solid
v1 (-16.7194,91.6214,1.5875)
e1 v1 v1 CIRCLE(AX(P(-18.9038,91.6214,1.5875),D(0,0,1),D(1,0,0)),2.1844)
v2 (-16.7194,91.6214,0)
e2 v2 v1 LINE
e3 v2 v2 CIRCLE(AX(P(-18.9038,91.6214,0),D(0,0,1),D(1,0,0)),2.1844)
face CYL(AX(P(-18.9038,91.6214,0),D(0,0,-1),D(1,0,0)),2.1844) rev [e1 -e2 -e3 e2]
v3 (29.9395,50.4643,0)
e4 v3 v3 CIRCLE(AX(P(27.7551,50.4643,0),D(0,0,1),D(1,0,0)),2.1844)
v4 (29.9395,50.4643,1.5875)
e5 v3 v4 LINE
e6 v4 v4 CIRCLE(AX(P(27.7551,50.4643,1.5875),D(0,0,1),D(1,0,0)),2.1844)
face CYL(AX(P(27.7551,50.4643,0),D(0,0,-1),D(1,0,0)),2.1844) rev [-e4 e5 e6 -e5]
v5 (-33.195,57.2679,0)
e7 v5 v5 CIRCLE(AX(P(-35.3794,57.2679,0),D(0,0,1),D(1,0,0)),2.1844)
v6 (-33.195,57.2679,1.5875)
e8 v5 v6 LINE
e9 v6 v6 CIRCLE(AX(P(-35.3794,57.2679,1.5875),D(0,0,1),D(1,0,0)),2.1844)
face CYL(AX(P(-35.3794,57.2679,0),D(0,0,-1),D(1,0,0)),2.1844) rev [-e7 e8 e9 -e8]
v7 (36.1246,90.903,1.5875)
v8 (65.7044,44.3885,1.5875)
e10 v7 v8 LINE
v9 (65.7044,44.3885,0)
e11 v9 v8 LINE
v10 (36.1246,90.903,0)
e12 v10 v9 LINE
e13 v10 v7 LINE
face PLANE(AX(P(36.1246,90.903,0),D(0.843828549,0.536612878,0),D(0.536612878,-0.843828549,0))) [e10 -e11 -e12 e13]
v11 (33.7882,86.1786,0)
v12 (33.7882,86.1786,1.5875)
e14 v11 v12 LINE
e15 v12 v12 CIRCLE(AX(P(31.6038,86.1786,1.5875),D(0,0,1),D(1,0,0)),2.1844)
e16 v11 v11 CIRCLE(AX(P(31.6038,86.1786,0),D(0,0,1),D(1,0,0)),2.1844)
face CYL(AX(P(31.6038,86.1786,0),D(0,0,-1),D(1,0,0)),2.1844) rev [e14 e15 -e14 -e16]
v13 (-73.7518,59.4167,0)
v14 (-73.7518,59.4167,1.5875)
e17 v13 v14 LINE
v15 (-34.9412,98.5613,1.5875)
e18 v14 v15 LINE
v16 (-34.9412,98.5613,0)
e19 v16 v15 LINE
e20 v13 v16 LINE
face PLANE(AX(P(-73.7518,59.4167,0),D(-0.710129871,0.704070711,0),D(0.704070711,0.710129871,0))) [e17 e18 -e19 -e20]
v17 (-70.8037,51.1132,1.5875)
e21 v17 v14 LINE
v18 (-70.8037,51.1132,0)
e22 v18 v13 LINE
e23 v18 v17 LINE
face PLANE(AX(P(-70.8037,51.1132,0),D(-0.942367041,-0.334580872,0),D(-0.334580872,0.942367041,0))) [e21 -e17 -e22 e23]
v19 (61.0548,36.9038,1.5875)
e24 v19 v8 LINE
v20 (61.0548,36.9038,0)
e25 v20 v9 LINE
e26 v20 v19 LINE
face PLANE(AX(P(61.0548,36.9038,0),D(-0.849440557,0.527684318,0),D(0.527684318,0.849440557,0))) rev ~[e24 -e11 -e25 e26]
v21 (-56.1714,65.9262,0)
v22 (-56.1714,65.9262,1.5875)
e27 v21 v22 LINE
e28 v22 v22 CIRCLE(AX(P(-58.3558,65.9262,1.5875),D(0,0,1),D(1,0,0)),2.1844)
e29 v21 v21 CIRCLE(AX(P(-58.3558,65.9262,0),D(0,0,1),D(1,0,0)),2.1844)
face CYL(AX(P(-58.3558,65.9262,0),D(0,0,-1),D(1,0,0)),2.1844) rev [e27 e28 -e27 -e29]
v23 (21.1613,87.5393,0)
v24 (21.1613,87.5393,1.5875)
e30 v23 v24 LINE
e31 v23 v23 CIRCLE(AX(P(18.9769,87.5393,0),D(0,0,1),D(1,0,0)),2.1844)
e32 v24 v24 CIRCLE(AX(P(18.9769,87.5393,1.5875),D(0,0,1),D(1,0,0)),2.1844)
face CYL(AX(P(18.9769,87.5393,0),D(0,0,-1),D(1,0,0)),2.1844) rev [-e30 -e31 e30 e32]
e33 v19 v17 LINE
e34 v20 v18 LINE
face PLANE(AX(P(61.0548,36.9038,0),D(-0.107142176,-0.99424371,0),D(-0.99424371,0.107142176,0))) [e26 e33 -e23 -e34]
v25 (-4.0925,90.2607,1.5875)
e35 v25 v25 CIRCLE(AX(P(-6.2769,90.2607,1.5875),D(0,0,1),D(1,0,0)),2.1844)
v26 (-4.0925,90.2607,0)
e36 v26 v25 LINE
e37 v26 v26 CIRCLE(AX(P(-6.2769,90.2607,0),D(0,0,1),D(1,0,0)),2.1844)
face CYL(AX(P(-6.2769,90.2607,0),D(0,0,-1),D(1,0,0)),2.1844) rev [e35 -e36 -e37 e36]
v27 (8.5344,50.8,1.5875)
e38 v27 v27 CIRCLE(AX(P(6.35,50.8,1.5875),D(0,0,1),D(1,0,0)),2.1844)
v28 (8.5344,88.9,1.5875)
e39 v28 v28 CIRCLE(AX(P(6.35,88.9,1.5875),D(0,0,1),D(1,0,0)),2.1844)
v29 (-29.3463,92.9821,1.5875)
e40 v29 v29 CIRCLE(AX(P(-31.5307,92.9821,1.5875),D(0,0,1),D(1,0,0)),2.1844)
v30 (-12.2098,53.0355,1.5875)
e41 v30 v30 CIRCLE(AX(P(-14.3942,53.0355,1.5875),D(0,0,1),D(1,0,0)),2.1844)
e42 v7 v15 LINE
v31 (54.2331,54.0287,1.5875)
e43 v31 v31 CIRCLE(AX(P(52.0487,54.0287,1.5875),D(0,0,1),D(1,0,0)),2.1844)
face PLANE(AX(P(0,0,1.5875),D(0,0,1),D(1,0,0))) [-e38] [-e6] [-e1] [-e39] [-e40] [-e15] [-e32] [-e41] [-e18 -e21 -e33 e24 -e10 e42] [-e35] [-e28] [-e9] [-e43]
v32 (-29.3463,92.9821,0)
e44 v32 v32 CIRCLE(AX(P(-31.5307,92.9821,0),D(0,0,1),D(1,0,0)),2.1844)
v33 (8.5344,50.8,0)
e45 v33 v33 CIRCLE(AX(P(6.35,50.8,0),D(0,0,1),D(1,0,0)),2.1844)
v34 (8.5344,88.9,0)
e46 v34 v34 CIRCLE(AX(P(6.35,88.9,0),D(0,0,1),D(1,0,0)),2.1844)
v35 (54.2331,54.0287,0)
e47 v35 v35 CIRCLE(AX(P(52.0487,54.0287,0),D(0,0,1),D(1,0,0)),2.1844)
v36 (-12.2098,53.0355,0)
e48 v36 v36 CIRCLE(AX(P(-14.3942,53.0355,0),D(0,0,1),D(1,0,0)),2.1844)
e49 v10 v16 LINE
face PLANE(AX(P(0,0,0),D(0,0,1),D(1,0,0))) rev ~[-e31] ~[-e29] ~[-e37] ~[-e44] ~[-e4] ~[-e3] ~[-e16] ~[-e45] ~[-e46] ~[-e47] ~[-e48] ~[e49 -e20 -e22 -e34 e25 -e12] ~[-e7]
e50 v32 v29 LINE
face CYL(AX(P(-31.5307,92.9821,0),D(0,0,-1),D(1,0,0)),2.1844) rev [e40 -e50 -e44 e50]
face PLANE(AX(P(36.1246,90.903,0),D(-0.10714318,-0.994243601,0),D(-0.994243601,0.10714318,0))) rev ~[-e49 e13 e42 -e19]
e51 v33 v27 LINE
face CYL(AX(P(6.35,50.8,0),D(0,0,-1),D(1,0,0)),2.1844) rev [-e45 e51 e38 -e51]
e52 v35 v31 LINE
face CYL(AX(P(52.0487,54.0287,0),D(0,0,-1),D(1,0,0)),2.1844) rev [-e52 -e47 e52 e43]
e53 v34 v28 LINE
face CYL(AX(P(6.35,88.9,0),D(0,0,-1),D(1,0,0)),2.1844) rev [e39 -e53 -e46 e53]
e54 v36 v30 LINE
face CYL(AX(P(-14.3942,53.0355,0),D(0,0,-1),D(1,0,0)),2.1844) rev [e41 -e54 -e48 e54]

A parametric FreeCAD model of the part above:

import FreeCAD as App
import Part
import Sketcher
Q = App.Units.Quantity

doc = App.newDocument("Part")
body = doc.addObject("PartDesign::Body", "Body")

# Sketch on XY plane
sketch1 = doc.addObject("Sketcher::SketchObject", "Sketch")
body.addObject(sketch1)
sketch1.AttachmentSupport = (doc.XY_Plane, [""])
sketch1.MapMode = "FlatFace"
sketch1.addGeometry(Part.LineSegment(App.Vector(65.7044, 44.3885, 0), App.Vector(36.1246, 90.903, 0)), False)
sketch1.addGeometry(Part.LineSegment(App.Vector(36.1246, 90.903, 0), App.Vector(-34.9412, 98.5613, 0)), False)
sketch1.addGeometry(Part.LineSegment(App.Vector(-34.9412, 98.5613, 0), App.Vector(-73.7518, 59.4167, 0)), False)
sketch1.addGeometry(Part.LineSegment(App.Vector(-73.7518, 59.4167, 0), App.Vector(-70.8037, 51.1132, 0)), False)
sketch1.addGeometry(Part.LineSegment(App.Vector(-70.8037, 51.1132, 0), App.Vector(61.0548, 36.9038, 0)), False)
sketch1.addGeometry(Part.LineSegment(App.Vector(61.0548, 36.9038, 0), App.Vector(65.7044, 44.3885, 0)), False)
sketch1.addGeometry(Part.Circle(App.Vector(-58.3558, 65.9262, 0), App.Vector(0, 0, 1), 2.1844), False)
sketch1.addGeometry(Part.Circle(App.Vector(-35.3794, 57.2679, 0), App.Vector(0, 0, 1), 2.1844), False)
sketch1.addGeometry(Part.Circle(App.Vector(-14.3942, 53.0355, 0), App.Vector(0, 0, 1), 2.1844), False)
sketch1.addGeometry(Part.Circle(App.Vector(6.35, 50.8, 0), App.Vector(0, 0, 1), 2.1844), False)
sketch1.addGeometry(Part.Circle(App.Vector(27.7551, 50.4643, 0), App.Vector(0, 0, 1), 2.1844), False)
sketch1.addGeometry(Part.Circle(App.Vector(52.0487, 54.0287, 0), App.Vector(0, 0, 1), 2.1844), False)
sketch1.addGeometry(Part.Circle(App.Vector(-6.2769, 90.2607, 0), App.Vector(0, 0, 1), 2.1844), False)
sketch1.addGeometry(Part.Circle(App.Vector(-31.5307, 92.9821, 0), App.Vector(0, 0, 1), 2.1844), False)
sketch1.addGeometry(Part.Circle(App.Vector(-18.9038, 91.6214, 0), App.Vector(0, 0, 1), 2.1844), False)
sketch1.addGeometry(Part.Circle(App.Vector(6.35, 88.9, 0), App.Vector(0, 0, 1), 2.1844), False)
sketch1.addGeometry(Part.Circle(App.Vector(18.9769, 87.5393, 0), App.Vector(0, 0, 1), 2.1844), False)
sketch1.addGeometry(Part.Circle(App.Vector(31.6038, 86.1786, 0), App.Vector(0, 0, 1), 2.1844), False)
sketch1.addConstraint(Sketcher.Constraint("Coincident", 0, 2, 1, 1))
sketch1.addConstraint(Sketcher.Constraint("Coincident", 1, 2, 2, 1))
sketch1.addConstraint(Sketcher.Constraint("Coincident", 2, 2, 3, 1))
sketch1.addConstraint(Sketcher.Constraint("Coincident", 3, 2, 4, 1))
sketch1.addConstraint(Sketcher.Constraint("Coincident", 4, 2, 5, 1))
sketch1.addConstraint(Sketcher.Constraint("Coincident", 5, 2, 0, 1))
sketch1.addConstraint(Sketcher.Constraint("Diameter", 6, Q("0.172 in")))
sketch1.addConstraint(Sketcher.Constraint("Diameter", 7, Q("0.172 in")))
sketch1.addConstraint(Sketcher.Constraint("Diameter", 8, Q("0.172 in")))
sketch1.addConstraint(Sketcher.Constraint("Diameter", 9, Q("0.172 in")))
sketch1.addConstraint(Sketcher.Constraint("Diameter", 10, Q("0.172 in")))
sketch1.addConstraint(Sketcher.Constraint("Diameter", 11, Q("0.172 in")))
sketch1.addConstraint(Sketcher.Constraint("Diameter", 12, Q("0.172 in")))
sketch1.addConstraint(Sketcher.Constraint("Diameter", 13, Q("0.172 in")))
sketch1.addConstraint(Sketcher.Constraint("Diameter", 14, Q("0.172 in")))
sketch1.addConstraint(Sketcher.Constraint("Diameter", 15, Q("0.172 in")))
sketch1.addConstraint(Sketcher.Constraint("Diameter", 16, Q("0.172 in")))
sketch1.addConstraint(Sketcher.Constraint("Diameter", 17, Q("0.172 in")))
sketch1.addConstraint(Sketcher.Constraint("DistanceY", -1, 1, 9, 3, Q("2 in")))
sketch1.addConstraint(Sketcher.Constraint("DistanceY", -1, 1, 15, 3, Q("3.5 in")))
sketch1.addConstraint(Sketcher.Constraint("DistanceX", -1, 1, 9, 3, Q("0.25 in")))
sketch1.addConstraint(Sketcher.Constraint("DistanceX", -1, 1, 15, 3, Q("0.25 in")))
sketch1.addConstraint(Sketcher.Constraint("DistanceY", -1, 1, 8, 3, Q("2.088 in")))
sketch1.addConstraint(Sketcher.Constraint("DistanceY", 17, 3, 0, 2, Q("0.186 in")))
sketch1.addConstraint(Sketcher.Constraint("DistanceX", 10, 3, 4, 2, Q("1.311 in")))
sketch1.addConstraint(Sketcher.Constraint("Distance", 0, Q("2.1702 in")))
sketch1.addConstraint(Sketcher.Constraint("Distance", 2, Q("2.1702 in")))
sketch1.addConstraint(Sketcher.Constraint("Distance", 3, Q("0.3469 in")))
sketch1.addConstraint(Sketcher.Constraint("Distance", 5, Q("0.3469 in")))
sketch1.addConstraint(Sketcher.Constraint("DistanceX", 7, 3, -1, 1, Q("1.3929 in")))
sketch1.addConstraint(Sketcher.Constraint("DistanceX", 8, 3, -1, 1, Q("0.5667 in")))
sketch1.addConstraint(Sketcher.Constraint("DistanceY", -1, 1, 4, 2, Q("1.4529 in")))
sketch1.addConstraint(Sketcher.Constraint("DistanceY", 8, 3, 6, 3, Q("0.5075 in")))
sketch1.addConstraint(Sketcher.Constraint("DistanceX", 7, 3, 10, 3, Q("2.4856 in")))
sketch1.addConstraint(Sketcher.Constraint("DistanceX", 6, 3, 10, 3, Q("3.3902 in")))
sketch1.addConstraint(Sketcher.Constraint("DistanceY", 8, 3, 11, 3, Q("0.0391 in")))
sketch1.addConstraint(Sketcher.Constraint("DistanceX", 6, 3, 13, 3, Q("1.0561 in")))
sketch1.addConstraint(Sketcher.Constraint("DistanceY", 6, 3, 13, 3, Q("1.0652 in")))
sketch1.addConstraint(Sketcher.Constraint("DistanceY", 7, 3, 14, 3, Q("1.3525 in")))
sketch1.addConstraint(Sketcher.Constraint("DistanceX", 16, 3, 10, 3, Q("0.3456 in")))
sketch1.addConstraint(Sketcher.Constraint("DistanceX", 16, 3, 0, 2, Q("0.6751 in")))
sketch1.addConstraint(Sketcher.Constraint("DistanceX", 1, 2, 14, 3, Q("0.6314 in")))
sketch1.addConstraint(Sketcher.Constraint("DistanceY", 12, 3, 1, 2, Q("0.3268 in")))
sketch1.addConstraint(Sketcher.Constraint("DistanceY", 7, 3, 2, 2, Q("0.0846 in")))
sketch1.addConstraint(Sketcher.Constraint("DistanceY", 3, 2, 2, 2, Q("0.3269 in")))
sketch1.addConstraint(Sketcher.Constraint("DistanceY", 3, 2, 6, 3, Q("0.5832 in")))
sketch1.addConstraint(Sketcher.Constraint("DistanceX", 17, 3, 4, 2, Q("1.1595 in")))
sketch1.addConstraint(Sketcher.Constraint("DistanceY", 5, 2, 10, 3, Q("0.2392 in")))
sketch1.addConstraint(Sketcher.Constraint("Distance", 1, Q("71.4773 mm")))
sketch1.addConstraint(Sketcher.Constraint("Distance", 4, Q("132.622 mm")))
sketch1.addConstraint(Sketcher.Constraint("DistanceY", -1, 1, 10, 3, Q("50.4643 mm")))
sketch1.addConstraint(Sketcher.Constraint("DistanceX", -1, 1, 11, 3, Q("52.0487 mm")))
sketch1.addConstraint(Sketcher.Constraint("DistanceX", 12, 3, -1, 1, Q("6.277 mm")))
sketch1.addConstraint(Sketcher.Constraint("DistanceY", -1, 1, 16, 3, Q("87.5393 mm")))
pad1 = doc.addObject("PartDesign::Pad", "Pad")
body.addObject(pad1)
pad1.Profile = sketch1
pad1.Length = Q("0.0625 in")

doc.recompute()
